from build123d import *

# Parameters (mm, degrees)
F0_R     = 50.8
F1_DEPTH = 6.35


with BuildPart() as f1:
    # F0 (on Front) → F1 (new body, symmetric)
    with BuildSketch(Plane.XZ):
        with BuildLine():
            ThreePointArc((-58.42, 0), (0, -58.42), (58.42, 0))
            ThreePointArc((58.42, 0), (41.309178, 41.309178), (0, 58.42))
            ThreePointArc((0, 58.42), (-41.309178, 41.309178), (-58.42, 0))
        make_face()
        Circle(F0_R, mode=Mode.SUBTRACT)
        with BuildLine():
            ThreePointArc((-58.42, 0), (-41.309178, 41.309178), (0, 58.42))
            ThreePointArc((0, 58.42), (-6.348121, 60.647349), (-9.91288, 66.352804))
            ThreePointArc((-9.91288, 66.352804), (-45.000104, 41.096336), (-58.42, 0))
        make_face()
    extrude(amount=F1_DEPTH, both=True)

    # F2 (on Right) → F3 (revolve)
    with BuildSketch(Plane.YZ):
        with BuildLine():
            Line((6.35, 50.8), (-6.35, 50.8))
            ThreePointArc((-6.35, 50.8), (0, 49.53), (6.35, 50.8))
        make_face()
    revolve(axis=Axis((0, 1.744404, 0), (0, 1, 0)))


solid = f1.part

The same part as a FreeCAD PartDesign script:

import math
import FreeCAD as App
import Part
import Sketcher
from FreeCAD import Vector
Q = App.Units.Quantity

doc = App.newDocument("Part")
body = doc.addObject("PartDesign::Body", "Body")

# Sketch on XZ plane
sketch1 = body.newObject("Sketcher::SketchObject", "Sketch")
sketch1.AttachmentSupport = (doc.getObject("XZ_Plane"), [""])
sketch1.MapMode = "FlatFace"
sketch1.addGeometry(Part.ArcOfCircle(Part.Circle(Vector(0, 0, 0), Vector(0, 0, 1), 58), math.radians(180), math.radians(360)), False)
sketch1.addGeometry(Part.ArcOfCircle(Part.Circle(Vector(0, 0, 0), Vector(0, 0, 1), 58), math.radians(0), math.radians(90)), False)
sketch1.addGeometry(Part.ArcOfCircle(Part.Circle(Vector(0, 69, 0), Vector(0, 0, 1), 10), math.radians(-167), math.radians(-90)), False)
sketch1.addGeometry(Part.ArcOfCircle(Part.Circle(Vector(11, 0, 0), Vector(0, 0, 1), 70), math.radians(108), math.radians(180)), False)
sketch1.addGeometry(Part.Circle(Vector(0, 0, 0), Vector(0, 0, 1), 51), False)
sketch1.addConstraint(Sketcher.Constraint("Tangent", 0, 2, 1, 1))
sketch1.addConstraint(Sketcher.Constraint("Tangent", 1, 2, 2, 2))
sketch1.addConstraint(Sketcher.Constraint("Coincident", 2, 1, 3, 1))
sketch1.addConstraint(Sketcher.Constraint("Tangent", 3, 2, 0, 1))
sketch1.addConstraint(Sketcher.Constraint("Coincident", 0, 3, -1, 1))
sketch1.addConstraint(Sketcher.Constraint("Coincident", 4, 3, -1, 1))
sketch1.addConstraint(Sketcher.Constraint("Equal", 0, 1))
sketch1.addConstraint(Sketcher.Constraint("PointOnObject", 2, 3, -2))
sketch1.addConstraint(Sketcher.Constraint("PointOnObject", 3, 3, -1))
sketch1.addConstraint(Sketcher.Constraint("PointOnObject", 0, 2, -1))
sketch1.addConstraint(Sketcher.Constraint("Diameter", 4, Q("4 in")))
sketch1.addConstraint(Sketcher.Constraint("Radius", 0, Q("2.3 in")))
sketch1.addConstraint(Sketcher.Constraint("Radius", 2, Q("0.4 in")))
sketch1.addConstraint(Sketcher.Constraint("Radius", 3, 69.6355))
pad1 = body.newObject("PartDesign::Pad", "Pad")
pad1.Profile = sketch1
pad1.Length = Q("0.5 in")
pad1.Midplane = True

# Sketch on YZ plane
sketch2 = body.newObject("Sketcher::SketchObject", "Sketch001")
sketch2.AttachmentSupport = (doc.getObject("YZ_Plane"), [""])
sketch2.MapMode = "FlatFace"
sketch2.addGeometry(Part.LineSegment(Vector(6, 51, 0), Vector(-6, 51, 0)), False)
sketch2.addGeometry(Part.ArcOfCircle(Part.Circle(Vector(0, 66, 0), Vector(0, 0, 1), 17), math.radians(-113), math.radians(-67)), False)
sketch2.addConstraint(Sketcher.Constraint("Coincident", 0, 1, 1, 2))
sketch2.addConstraint(Sketcher.Constraint("Coincident", 1, 1, 0, 2))
sketch2.addConstraint(Sketcher.Constraint("Horizontal", 0))
sketch2.addConstraint(Sketcher.Constraint("PointOnObject", 1, 3, -2))
sketch2.addConstraint(Sketcher.Constraint("Radius", 1, Q("0.65 in")))
sketch2.addConstraint(Sketcher.Constraint("DistanceX", 0, 2, 0, 1, Q("0.5 in")))
sketch2.addConstraint(Sketcher.Constraint("DistanceY", -1, 1, 0, 1, Q("2 in")))
revolution = body.newObject("PartDesign::Revolution", "Revolution")
revolution.Profile = sketch2
revolution.ReferenceAxis = (sketch2, ["H_Axis"])
revolution.Angle = 360

doc.recompute()
